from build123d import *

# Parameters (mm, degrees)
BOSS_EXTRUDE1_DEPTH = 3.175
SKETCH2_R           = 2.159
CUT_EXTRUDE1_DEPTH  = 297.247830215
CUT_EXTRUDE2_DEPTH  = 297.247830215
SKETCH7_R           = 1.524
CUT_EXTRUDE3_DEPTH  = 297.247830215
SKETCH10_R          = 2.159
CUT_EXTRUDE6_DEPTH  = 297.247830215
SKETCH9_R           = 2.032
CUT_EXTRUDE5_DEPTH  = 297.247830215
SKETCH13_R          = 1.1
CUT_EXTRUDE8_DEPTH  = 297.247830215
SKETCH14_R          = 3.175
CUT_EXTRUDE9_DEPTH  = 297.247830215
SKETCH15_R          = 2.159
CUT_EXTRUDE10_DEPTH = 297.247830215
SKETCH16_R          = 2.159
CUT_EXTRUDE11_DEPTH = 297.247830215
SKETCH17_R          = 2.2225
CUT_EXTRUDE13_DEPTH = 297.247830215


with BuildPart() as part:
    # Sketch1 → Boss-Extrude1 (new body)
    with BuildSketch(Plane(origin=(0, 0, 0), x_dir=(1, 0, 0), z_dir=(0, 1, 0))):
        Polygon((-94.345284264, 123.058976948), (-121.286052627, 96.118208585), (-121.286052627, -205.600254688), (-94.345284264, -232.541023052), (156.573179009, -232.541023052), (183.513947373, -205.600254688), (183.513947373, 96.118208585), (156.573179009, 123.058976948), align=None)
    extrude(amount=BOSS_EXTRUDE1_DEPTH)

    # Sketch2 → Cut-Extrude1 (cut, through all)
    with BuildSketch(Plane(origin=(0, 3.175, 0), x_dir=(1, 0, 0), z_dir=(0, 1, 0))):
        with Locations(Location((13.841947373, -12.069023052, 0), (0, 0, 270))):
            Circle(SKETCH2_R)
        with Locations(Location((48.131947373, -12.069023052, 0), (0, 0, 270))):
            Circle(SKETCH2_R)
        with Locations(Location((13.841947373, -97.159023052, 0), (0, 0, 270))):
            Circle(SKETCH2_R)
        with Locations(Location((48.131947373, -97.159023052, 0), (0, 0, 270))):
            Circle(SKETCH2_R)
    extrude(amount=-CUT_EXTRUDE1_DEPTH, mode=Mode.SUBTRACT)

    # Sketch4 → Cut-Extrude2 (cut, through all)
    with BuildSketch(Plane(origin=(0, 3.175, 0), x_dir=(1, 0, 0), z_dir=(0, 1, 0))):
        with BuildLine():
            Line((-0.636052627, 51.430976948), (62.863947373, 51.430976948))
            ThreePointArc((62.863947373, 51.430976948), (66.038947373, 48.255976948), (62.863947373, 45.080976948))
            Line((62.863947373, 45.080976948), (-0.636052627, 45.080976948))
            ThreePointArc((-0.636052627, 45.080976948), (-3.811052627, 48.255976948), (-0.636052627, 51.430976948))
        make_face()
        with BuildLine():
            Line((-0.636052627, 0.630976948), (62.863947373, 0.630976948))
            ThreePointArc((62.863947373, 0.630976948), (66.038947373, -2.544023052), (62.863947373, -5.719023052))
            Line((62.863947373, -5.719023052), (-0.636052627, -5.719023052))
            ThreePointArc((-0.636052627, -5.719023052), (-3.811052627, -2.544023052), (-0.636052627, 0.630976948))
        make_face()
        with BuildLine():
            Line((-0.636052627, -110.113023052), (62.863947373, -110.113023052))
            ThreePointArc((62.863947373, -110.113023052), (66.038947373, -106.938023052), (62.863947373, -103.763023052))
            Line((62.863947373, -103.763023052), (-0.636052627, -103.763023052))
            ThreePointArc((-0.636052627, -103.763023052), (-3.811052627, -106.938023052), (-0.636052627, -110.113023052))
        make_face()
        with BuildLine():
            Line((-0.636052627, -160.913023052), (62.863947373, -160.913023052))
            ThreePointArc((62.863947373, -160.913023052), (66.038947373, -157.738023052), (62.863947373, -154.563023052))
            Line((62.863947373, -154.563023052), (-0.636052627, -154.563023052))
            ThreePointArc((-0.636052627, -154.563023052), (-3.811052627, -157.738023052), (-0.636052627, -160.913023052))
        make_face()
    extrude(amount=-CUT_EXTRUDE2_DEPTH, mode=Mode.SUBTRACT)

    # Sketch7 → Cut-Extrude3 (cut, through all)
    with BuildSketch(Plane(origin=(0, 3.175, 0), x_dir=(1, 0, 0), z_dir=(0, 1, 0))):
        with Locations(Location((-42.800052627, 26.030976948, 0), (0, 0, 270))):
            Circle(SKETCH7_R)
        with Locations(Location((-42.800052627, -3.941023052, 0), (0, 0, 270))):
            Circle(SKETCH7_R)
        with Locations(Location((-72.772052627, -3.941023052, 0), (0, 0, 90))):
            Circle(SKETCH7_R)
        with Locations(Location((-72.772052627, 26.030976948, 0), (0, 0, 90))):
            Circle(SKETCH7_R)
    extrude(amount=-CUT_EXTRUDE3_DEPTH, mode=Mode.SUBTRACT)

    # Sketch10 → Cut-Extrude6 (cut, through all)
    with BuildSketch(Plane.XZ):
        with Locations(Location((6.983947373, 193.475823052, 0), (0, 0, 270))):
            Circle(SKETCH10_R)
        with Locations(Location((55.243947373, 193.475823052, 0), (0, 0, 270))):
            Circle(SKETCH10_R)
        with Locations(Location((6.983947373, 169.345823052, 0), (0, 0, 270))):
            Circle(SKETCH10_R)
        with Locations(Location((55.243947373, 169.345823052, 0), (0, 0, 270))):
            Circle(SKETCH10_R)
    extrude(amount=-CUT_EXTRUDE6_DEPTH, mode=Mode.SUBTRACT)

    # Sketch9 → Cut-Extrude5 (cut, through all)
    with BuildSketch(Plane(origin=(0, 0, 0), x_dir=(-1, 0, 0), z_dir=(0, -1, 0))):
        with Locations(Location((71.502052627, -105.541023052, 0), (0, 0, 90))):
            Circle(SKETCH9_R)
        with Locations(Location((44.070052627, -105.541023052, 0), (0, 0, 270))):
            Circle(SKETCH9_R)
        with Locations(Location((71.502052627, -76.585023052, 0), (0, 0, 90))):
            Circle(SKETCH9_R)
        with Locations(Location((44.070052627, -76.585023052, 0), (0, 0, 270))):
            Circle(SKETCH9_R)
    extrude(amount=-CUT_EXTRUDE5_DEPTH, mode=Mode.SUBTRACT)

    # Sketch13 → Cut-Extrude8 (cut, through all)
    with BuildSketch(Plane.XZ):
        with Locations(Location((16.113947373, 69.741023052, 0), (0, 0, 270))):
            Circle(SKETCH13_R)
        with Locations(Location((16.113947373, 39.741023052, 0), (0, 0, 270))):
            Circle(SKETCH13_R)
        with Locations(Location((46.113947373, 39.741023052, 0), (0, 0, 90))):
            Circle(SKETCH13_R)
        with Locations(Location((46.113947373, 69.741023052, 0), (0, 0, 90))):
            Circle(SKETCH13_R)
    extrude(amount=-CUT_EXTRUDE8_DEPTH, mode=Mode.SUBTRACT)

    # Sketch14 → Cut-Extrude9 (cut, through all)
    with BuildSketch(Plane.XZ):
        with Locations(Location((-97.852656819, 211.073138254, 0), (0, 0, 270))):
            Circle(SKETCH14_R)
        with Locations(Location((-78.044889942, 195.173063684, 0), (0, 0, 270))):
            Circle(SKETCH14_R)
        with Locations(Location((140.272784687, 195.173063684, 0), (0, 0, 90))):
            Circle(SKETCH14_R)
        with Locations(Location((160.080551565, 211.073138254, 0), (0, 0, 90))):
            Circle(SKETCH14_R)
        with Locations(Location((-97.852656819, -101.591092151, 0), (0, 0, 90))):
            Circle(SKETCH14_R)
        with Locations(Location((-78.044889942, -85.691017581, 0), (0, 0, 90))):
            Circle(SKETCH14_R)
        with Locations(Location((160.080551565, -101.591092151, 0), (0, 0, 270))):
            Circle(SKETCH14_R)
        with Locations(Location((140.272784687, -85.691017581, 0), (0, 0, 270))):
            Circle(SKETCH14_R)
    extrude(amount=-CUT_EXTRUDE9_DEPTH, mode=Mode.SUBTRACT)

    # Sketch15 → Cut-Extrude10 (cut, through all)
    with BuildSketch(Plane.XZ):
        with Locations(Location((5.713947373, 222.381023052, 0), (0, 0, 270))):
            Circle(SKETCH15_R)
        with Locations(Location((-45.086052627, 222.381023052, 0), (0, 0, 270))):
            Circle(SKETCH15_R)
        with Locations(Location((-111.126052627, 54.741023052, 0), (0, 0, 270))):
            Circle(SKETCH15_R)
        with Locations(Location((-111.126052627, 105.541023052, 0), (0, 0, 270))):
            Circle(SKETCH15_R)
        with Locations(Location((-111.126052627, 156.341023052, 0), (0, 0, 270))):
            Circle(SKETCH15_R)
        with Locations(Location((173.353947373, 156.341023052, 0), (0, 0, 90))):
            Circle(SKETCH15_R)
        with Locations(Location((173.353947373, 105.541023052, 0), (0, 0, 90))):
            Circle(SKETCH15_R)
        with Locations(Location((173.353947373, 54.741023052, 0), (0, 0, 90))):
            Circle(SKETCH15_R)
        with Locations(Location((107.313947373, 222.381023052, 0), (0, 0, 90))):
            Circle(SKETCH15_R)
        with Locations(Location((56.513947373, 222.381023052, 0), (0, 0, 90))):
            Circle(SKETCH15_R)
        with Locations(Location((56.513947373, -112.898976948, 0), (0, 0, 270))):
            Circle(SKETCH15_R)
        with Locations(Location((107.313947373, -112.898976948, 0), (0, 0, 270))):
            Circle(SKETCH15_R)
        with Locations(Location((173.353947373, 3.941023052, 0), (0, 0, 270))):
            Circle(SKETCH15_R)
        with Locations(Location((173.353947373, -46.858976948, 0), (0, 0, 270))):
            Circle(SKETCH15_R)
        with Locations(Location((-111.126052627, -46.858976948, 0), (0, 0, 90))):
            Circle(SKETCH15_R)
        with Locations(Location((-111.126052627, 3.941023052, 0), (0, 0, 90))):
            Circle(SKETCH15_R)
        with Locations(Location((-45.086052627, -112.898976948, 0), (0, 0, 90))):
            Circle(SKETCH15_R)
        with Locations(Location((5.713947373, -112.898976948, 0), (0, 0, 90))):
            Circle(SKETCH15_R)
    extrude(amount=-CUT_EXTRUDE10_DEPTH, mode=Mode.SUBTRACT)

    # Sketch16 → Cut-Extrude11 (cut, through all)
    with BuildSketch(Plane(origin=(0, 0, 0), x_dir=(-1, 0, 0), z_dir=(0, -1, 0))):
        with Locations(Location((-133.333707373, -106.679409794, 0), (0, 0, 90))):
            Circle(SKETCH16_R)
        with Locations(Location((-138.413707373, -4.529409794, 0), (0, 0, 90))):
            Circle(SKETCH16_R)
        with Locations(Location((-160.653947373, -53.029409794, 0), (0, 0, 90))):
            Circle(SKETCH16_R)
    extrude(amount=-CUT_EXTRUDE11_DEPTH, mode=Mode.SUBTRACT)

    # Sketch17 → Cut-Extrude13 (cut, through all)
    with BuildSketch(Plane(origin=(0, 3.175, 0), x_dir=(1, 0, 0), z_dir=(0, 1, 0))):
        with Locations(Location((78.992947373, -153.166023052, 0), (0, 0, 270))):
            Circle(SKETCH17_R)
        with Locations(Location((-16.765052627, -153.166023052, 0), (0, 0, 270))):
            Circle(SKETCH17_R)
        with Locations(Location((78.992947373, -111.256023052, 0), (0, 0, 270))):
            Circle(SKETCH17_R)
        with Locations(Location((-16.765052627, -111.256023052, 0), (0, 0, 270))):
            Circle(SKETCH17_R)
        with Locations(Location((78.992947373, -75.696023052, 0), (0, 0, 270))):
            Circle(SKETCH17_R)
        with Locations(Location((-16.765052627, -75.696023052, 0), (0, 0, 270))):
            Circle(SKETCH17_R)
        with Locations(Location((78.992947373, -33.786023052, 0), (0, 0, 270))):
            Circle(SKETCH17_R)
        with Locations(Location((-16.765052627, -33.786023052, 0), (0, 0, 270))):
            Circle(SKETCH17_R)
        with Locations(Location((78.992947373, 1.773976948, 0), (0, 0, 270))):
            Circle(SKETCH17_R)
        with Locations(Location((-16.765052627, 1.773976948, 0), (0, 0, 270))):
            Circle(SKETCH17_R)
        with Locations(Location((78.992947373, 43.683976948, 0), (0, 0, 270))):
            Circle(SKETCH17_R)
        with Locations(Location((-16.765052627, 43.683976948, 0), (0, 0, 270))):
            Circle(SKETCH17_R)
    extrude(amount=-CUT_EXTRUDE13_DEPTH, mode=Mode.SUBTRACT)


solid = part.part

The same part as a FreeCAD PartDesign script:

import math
import FreeCAD as App
import Part
import Sketcher
Q = App.Units.Quantity


def add_polygon(sketch, points):
    """Adds a closed chain of lines whose ends are joined by coincident constraints."""
    first, n = sketch.GeometryCount, len(points)
    for a, b in zip(points, points[1:] + points[:1]):
        sketch.addGeometry(Part.LineSegment(App.Vector(*a, 0), App.Vector(*b, 0)), False)
    for i in range(n):
        sketch.addConstraint(Sketcher.Constraint("Coincident", first + i, 2, first + (i + 1) % n, 1))

doc = App.newDocument("Part")
body = doc.addObject("PartDesign::Body", "Body")

sketch1 = doc.addObject("Sketcher::SketchObject", "Sketch")
body.addObject(sketch1)
sketch1.AttachmentSupport = (doc.XZ_Plane, [""])
sketch1.MapMode = "FlatFace"
add_polygon(sketch1, [(-94, -123), (-121, -96), (-121, 206), (-94, 233), (157, 233), (184, 206), (184, -96), (157, -123)])
sketch1.addConstraint(Sketcher.Constraint("Vertical", 1))
sketch1.addConstraint(Sketcher.Constraint("Horizontal", 3))
sketch1.addConstraint(Sketcher.Constraint("Vertical", 5))
sketch1.addConstraint(Sketcher.Constraint("Horizontal", 7))
sketch1.addConstraint(Sketcher.Constraint("Perpendicular", 0, 2))
sketch1.addConstraint(Sketcher.Constraint("Perpendicular", 2, 4))
sketch1.addConstraint(Sketcher.Constraint("Perpendicular", 4, 6))
sketch1.addConstraint(Sketcher.Constraint("Horizontal", 1, 2, 4, 2))
sketch1.addConstraint(Sketcher.Constraint("Horizontal", 0, 2, 5, 2))
sketch1.addConstraint(Sketcher.Constraint("Vertical", 3, 2, 6, 2))
sketch1.addConstraint(Sketcher.Constraint("Vertical", 2, 2, 7, 2))
sketch1.addConstraint(Sketcher.Constraint("DistanceX", 1, 2, 4, 2, Q("12 in")))
sketch1.addConstraint(Sketcher.Constraint("DistanceY", 6, 2, 3, 2, Q("14 in")))
sketch1.addConstraint(Sketcher.Constraint("Distance", 0, Q("1.5 in")))
sketch1.addConstraint(Sketcher.Constraint("DistanceY", 0, 2, -1, 1, Q("96.118209 mm")))
sketch1.addConstraint(Sketcher.Constraint("DistanceX", -1, 1, 3, 2, Q("156.573179 mm")))
pad1 = doc.addObject("PartDesign::Pad", "Pad")
body.addObject(pad1)
pad1.Profile = sketch1
pad1.Length = Q("0.125 in")
pad1.Reversed = True

sketch2 = doc.addObject("Sketcher::SketchObject", "Sketch001")
body.addObject(sketch2)
sketch2.AttachmentSupport = (doc.XZ_Plane, [""])
sketch2.MapMode = "FlatFace"
sketch2.AttachmentOffset = App.Placement(App.Vector(0, 0, -0.125 * 25.4), App.Rotation())
sketch2.addGeometry(Part.Circle(App.Vector(13.8, 12.1, 0), App.Vector(0, 0, 1), 2.2), False)
sketch2.addGeometry(Part.Circle(App.Vector(48.1, 12.1, 0), App.Vector(0, 0, 1), 2.2), False)
sketch2.addGeometry(Part.Circle(App.Vector(13.8, 97.2, 0), App.Vector(0, 0, 1), 2.2), False)
sketch2.addGeometry(Part.Circle(App.Vector(48.1, 97.2, 0), App.Vector(0, 0, 1), 2.2), False)
sketch2.addConstraint(Sketcher.Constraint("Equal", 0, 1))
sketch2.addConstraint(Sketcher.Constraint("Equal", 1, 2))
sketch2.addConstraint(Sketcher.Constraint("Equal", 2, 3))
sketch2.addConstraint(Sketcher.Constraint("Horizontal", 0, 3, 1, 3))
sketch2.addConstraint(Sketcher.Constraint("Horizontal", 2, 3, 3, 3))
sketch2.addConstraint(Sketcher.Constraint("Vertical", 0, 3, 2, 3))
sketch2.addConstraint(Sketcher.Constraint("Vertical", 1, 3, 3, 3))
sketch2.addConstraint(Sketcher.Constraint("Diameter", 0, Q("0.17 in")))
sketch2.addConstraint(Sketcher.Constraint("DistanceX", 0, 3, 1, 3, Q("1.35 in")))
sketch2.addConstraint(Sketcher.Constraint("DistanceY", 0, 3, 2, 3, Q("3.35 in")))
sketch2.addConstraint(Sketcher.Constraint("DistanceX", -1, 1, 0, 3, Q("13.841947 mm")))
sketch2.addConstraint(Sketcher.Constraint("DistanceY", -1, 1, 0, 3, Q("12.069023 mm")))
pocket1 = doc.addObject("PartDesign::Pocket", "Pocket")
body.addObject(pocket1)
pocket1.Profile = sketch2
pocket1.Type = "ThroughAll"
pocket1.Reversed = True

sketch3 = doc.addObject("Sketcher::SketchObject", "Sketch002")
body.addObject(sketch3)
sketch3.AttachmentSupport = (doc.XZ_Plane, [""])
sketch3.MapMode = "FlatFace"
sketch3.AttachmentOffset = App.Placement(App.Vector(0, 0, -0.125 * 25.4), App.Rotation())
sketch3.addGeometry(Part.LineSegment(App.Vector(62.9, -51.4, 0), App.Vector(-0.6, -51.4, 0)), False)
sketch3.addGeometry(Part.ArcOfCircle(Part.Circle(App.Vector(-0.6, -48.3, 0), App.Vector(0, 0, 1), 3.2), math.radians(90), math.radians(270)), False)
sketch3.addGeometry(Part.LineSegment(App.Vector(-0.6, -45.1, 0), App.Vector(62.9, -45.1, 0)), False)
sketch3.addGeometry(Part.ArcOfCircle(Part.Circle(App.Vector(62.9, -48.3, 0), App.Vector(0, 0, 1), 3.2), math.radians(-90), math.radians(90)), False)
sketch3.addGeometry(Part.LineSegment(App.Vector(62.9, -0.6, 0), App.Vector(-0.6, -0.6, 0)), False)
sketch3.addGeometry(Part.ArcOfCircle(Part.Circle(App.Vector(-0.6, 2.5, 0), App.Vector(0, 0, 1), 3.2), math.radians(90), math.radians(270)), False)
sketch3.addGeometry(Part.LineSegment(App.Vector(-0.6, 5.7, 0), App.Vector(62.9, 5.7, 0)), False)
sketch3.addGeometry(Part.ArcOfCircle(Part.Circle(App.Vector(62.9, 2.5, 0), App.Vector(0, 0, 1), 3.2), math.radians(-90), math.radians(90)), False)
sketch3.addGeometry(Part.LineSegment(App.Vector(-0.6, 110.1, 0), App.Vector(62.9, 110.1, 0)), False)
sketch3.addGeometry(Part.ArcOfCircle(Part.Circle(App.Vector(62.9, 106.9, 0), App.Vector(0, 0, 1), 3.2), math.radians(-90), math.radians(90)), False)
sketch3.addGeometry(Part.LineSegment(App.Vector(62.9, 103.8, 0), App.Vector(-0.6, 103.8, 0)), False)
sketch3.addGeometry(Part.ArcOfCircle(Part.Circle(App.Vector(-0.6, 106.9, 0), App.Vector(0, 0, 1), 3.2), math.radians(90), math.radians(270)), False)
sketch3.addGeometry(Part.LineSegment(App.Vector(-0.6, 160.9, 0), App.Vector(62.9, 160.9, 0)), False)
sketch3.addGeometry(Part.ArcOfCircle(Part.Circle(App.Vector(62.9, 157.7, 0), App.Vector(0, 0, 1), 3.2), math.radians(-90), math.radians(90)), False)
sketch3.addGeometry(Part.LineSegment(App.Vector(62.9, 154.6, 0), App.Vector(-0.6, 154.6, 0)), False)
sketch3.addGeometry(Part.ArcOfCircle(Part.Circle(App.Vector(-0.6, 157.7, 0), App.Vector(0, 0, 1), 3.2), math.radians(90), math.radians(270)), False)
sketch3.addConstraint(Sketcher.Constraint("Tangent", 0, 2, 1, 2))
sketch3.addConstraint(Sketcher.Constraint("Tangent", 1, 1, 2, 1))
sketch3.addConstraint(Sketcher.Constraint("Tangent", 2, 2, 3, 2))
sketch3.addConstraint(Sketcher.Constraint("Tangent", 3, 1, 0, 1))
sketch3.addConstraint(Sketcher.Constraint("Tangent", 4, 2, 5, 2))
sketch3.addConstraint(Sketcher.Constraint("Tangent", 5, 1, 6, 1))
sketch3.addConstraint(Sketcher.Constraint("Tangent", 6, 2, 7, 2))
sketch3.addConstraint(Sketcher.Constraint("Tangent", 7, 1, 4, 1))
sketch3.addConstraint(Sketcher.Constraint("Tangent", 8, 2, 9, 2))
sketch3.addConstraint(Sketcher.Constraint("Tangent", 9, 1, 10, 1))
sketch3.addConstraint(Sketcher.Constraint("Tangent", 10, 2, 11, 2))
sketch3.addConstraint(Sketcher.Constraint("Tangent", 11, 1, 8, 1))
sketch3.addConstraint(Sketcher.Constraint("Tangent", 12, 2, 13, 2))
sketch3.addConstraint(Sketcher.Constraint("Tangent", 13, 1, 14, 1))
sketch3.addConstraint(Sketcher.Constraint("Tangent", 14, 2, 15, 2))
sketch3.addConstraint(Sketcher.Constraint("Tangent", 15, 1, 12, 1))
sketch3.addConstraint(Sketcher.Constraint("Horizontal", 0))
sketch3.addConstraint(Sketcher.Constraint("Horizontal", 2))
sketch3.addConstraint(Sketcher.Constraint("Horizontal", 4))
sketch3.addConstraint(Sketcher.Constraint("Horizontal", 6))
sketch3.addConstraint(Sketcher.Constraint("Horizontal", 8))
sketch3.addConstraint(Sketcher.Constraint("Horizontal", 10))
sketch3.addConstraint(Sketcher.Constraint("Horizontal", 12))
sketch3.addConstraint(Sketcher.Constraint("Horizontal", 14))
sketch3.addConstraint(Sketcher.Constraint("Equal", 3, 5))
sketch3.addConstraint(Sketcher.Constraint("Equal", 7, 9))
sketch3.addConstraint(Sketcher.Constraint("Equal", 11, 13))
sketch3.addConstraint(Sketcher.Constraint("Vertical", 1, 3, 5, 3))
sketch3.addConstraint(Sketcher.Constraint("Vertical", 3, 3, 7, 3))
sketch3.addConstraint(Sketcher.Constraint("Vertical", 7, 3, 9, 3))
sketch3.addConstraint(Sketcher.Constraint("Vertical", 5, 3, 11, 3))
sketch3.addConstraint(Sketcher.Constraint("Vertical", 9, 3, 13, 3))
sketch3.addConstraint(Sketcher.Constraint("Vertical", 11, 3, 15, 3))
sketch3.addConstraint(Sketcher.Constraint("DistanceX", 0, 2, 0, 1, Q("2.5 in")))
sketch3.addConstraint(Sketcher.Constraint("Radius", 1, Q("0.125 in")))
sketch3.addConstraint(Sketcher.Constraint("DistanceY", 1, 3, 5, 3, Q("2 in")))
sketch3.addConstraint(Sketcher.Constraint("DistanceY", 9, 3, 13, 3, Q("2 in")))
sketch3.addConstraint(Sketcher.Constraint("DistanceY", 7, 3, 9, 3, Q("4.11 in")))
sketch3.addConstraint(Sketcher.Constraint("DistanceX", 1, 3, -1, 1, Q("0.636053 mm")))
sketch3.addConstraint(Sketcher.Constraint("DistanceY", 1, 3, -1, 1, Q("48.255977 mm")))
pocket2 = doc.addObject("PartDesign::Pocket", "Pocket001")
body.addObject(pocket2)
pocket2.Profile = sketch3
pocket2.Type = "ThroughAll"
pocket2.Reversed = True

sketch4 = doc.addObject("Sketcher::SketchObject", "Sketch003")
body.addObject(sketch4)
sketch4.AttachmentSupport = (doc.XZ_Plane, [""])
sketch4.MapMode = "FlatFace"
sketch4.AttachmentOffset = App.Placement(App.Vector(0, 0, -0.125 * 25.4), App.Rotation())
sketch4.addGeometry(Part.Circle(App.Vector(-42.8, -26, 0), App.Vector(0, 0, 1), 1.5), False)
sketch4.addGeometry(Part.Circle(App.Vector(-42.8, 3.9, 0), App.Vector(0, 0, 1), 1.5), False)
sketch4.addGeometry(Part.Circle(App.Vector(-72.8, 3.9, 0), App.Vector(0, 0, 1), 1.5), False)
sketch4.addGeometry(Part.Circle(App.Vector(-72.8, -26, 0), App.Vector(0, 0, 1), 1.5), False)
sketch4.addConstraint(Sketcher.Constraint("Equal", 0, 1))
sketch4.addConstraint(Sketcher.Constraint("Equal", 1, 2))
sketch4.addConstraint(Sketcher.Constraint("Equal", 2, 3))
sketch4.addConstraint(Sketcher.Constraint("Horizontal", 1, 3, 2, 3))
sketch4.addConstraint(Sketcher.Constraint("Horizontal", 0, 3, 3, 3))
sketch4.addConstraint(Sketcher.Constraint("Vertical", 0, 3, 1, 3))
sketch4.addConstraint(Sketcher.Constraint("Vertical", 2, 3, 3, 3))
sketch4.addConstraint(Sketcher.Constraint("Diameter", 0, Q("0.12 in")))
sketch4.addConstraint(Sketcher.Constraint("DistanceY", 0, 3, 1, 3, Q("1.18 in")))
sketch4.addConstraint(Sketcher.Constraint("DistanceX", 2, 3, 1, 3, Q("1.18 in")))
sketch4.addConstraint(Sketcher.Constraint("DistanceX", 0, 3, -1, 1, Q("42.800053 mm")))
sketch4.addConstraint(Sketcher.Constraint("DistanceY", 0, 3, -1, 1, Q("26.030977 mm")))
pocket3 = doc.addObject("PartDesign::Pocket", "Pocket002")
body.addObject(pocket3)
pocket3.Profile = sketch4
pocket3.Type = "ThroughAll"
pocket3.Reversed = True

sketch5 = doc.addObject("Sketcher::SketchObject", "Sketch004")
body.addObject(sketch5)
sketch5.AttachmentSupport = (doc.XZ_Plane, [""])
sketch5.MapMode = "FlatFace"
sketch5.addGeometry(Part.Circle(App.Vector(7, 193.5, 0), App.Vector(0, 0, 1), 2.2), False)
sketch5.addGeometry(Part.Circle(App.Vector(55.2, 193.5, 0), App.Vector(0, 0, 1), 2.2), False)
sketch5.addGeometry(Part.Circle(App.Vector(7, 169.3, 0), App.Vector(0, 0, 1), 2.2), False)
sketch5.addGeometry(Part.Circle(App.Vector(55.2, 169.3, 0), App.Vector(0, 0, 1), 2.2), False)
sketch5.addConstraint(Sketcher.Constraint("Equal", 0, 1))
sketch5.addConstraint(Sketcher.Constraint("Equal", 1, 2))
sketch5.addConstraint(Sketcher.Constraint("Equal", 2, 3))
sketch5.addConstraint(Sketcher.Constraint("Horizontal", 0, 3, 1, 3))
sketch5.addConstraint(Sketcher.Constraint("Horizontal", 2, 3, 3, 3))
sketch5.addConstraint(Sketcher.Constraint("Vertical", 0, 3, 2, 3))
sketch5.addConstraint(Sketcher.Constraint("Vertical", 1, 3, 3, 3))
sketch5.addConstraint(Sketcher.Constraint("Diameter", 0, Q("0.17 in")))
sketch5.addConstraint(Sketcher.Constraint("DistanceX", 0, 3, 1, 3, Q("1.9 in")))
sketch5.addConstraint(Sketcher.Constraint("DistanceY", 2, 3, 0, 3, Q("0.95 in")))
sketch5.addConstraint(Sketcher.Constraint("DistanceX", -1, 1, 0, 3, Q("6.983947 mm")))
sketch5.addConstraint(Sketcher.Constraint("DistanceY", -1, 1, 0, 3, Q("193.475823 mm")))
pocket4 = doc.addObject("PartDesign::Pocket", "Pocket003")
body.addObject(pocket4)
pocket4.Profile = sketch5
pocket4.Type = "ThroughAll"

sketch6 = doc.addObject("Sketcher::SketchObject", "Sketch005")
body.addObject(sketch6)
sketch6.AttachmentSupport = (doc.XZ_Plane, [""])
sketch6.MapMode = "FlatFace"
sketch6.addGeometry(Part.Circle(App.Vector(-71.5, 105.5, 0), App.Vector(0, 0, 1), 2), False)
sketch6.addGeometry(Part.Circle(App.Vector(-44.1, 105.5, 0), App.Vector(0, 0, 1), 2), False)
sketch6.addGeometry(Part.Circle(App.Vector(-71.5, 76.6, 0), App.Vector(0, 0, 1), 2), False)
sketch6.addGeometry(Part.Circle(App.Vector(-44.1, 76.6, 0), App.Vector(0, 0, 1), 2), False)
sketch6.addConstraint(Sketcher.Constraint("Equal", 0, 1))
sketch6.addConstraint(Sketcher.Constraint("Equal", 1, 2))
sketch6.addConstraint(Sketcher.Constraint("Equal", 2, 3))
sketch6.addConstraint(Sketcher.Constraint("Horizontal", 0, 3, 1, 3))
sketch6.addConstraint(Sketcher.Constraint("Horizontal", 2, 3, 3, 3))
sketch6.addConstraint(Sketcher.Constraint("Vertical", 0, 3, 2, 3))
sketch6.addConstraint(Sketcher.Constraint("Vertical", 1, 3, 3, 3))
sketch6.addConstraint(Sketcher.Constraint("Diameter", 0, Q("0.16 in")))
sketch6.addConstraint(Sketcher.Constraint("DistanceX", 0, 3, 1, 3, Q("1.08 in")))
sketch6.addConstraint(Sketcher.Constraint("DistanceY", 2, 3, 0, 3, Q("1.14 in")))
sketch6.addConstraint(Sketcher.Constraint("DistanceX", 0, 3, -1, 1, Q("71.502053 mm")))
sketch6.addConstraint(Sketcher.Constraint("DistanceY", -1, 1, 0, 3, Q("105.541023 mm")))
pocket5 = doc.addObject("PartDesign::Pocket", "Pocket004")
body.addObject(pocket5)
pocket5.Profile = sketch6
pocket5.Type = "ThroughAll"

sketch7 = doc.addObject("Sketcher::SketchObject", "Sketch006")
body.addObject(sketch7)
sketch7.AttachmentSupport = (doc.XZ_Plane, [""])
sketch7.MapMode = "FlatFace"
sketch7.addGeometry(Part.Circle(App.Vector(16.1, 69.7, 0), App.Vector(0, 0, 1), 1.1), False)
sketch7.addGeometry(Part.Circle(App.Vector(16.1, 39.7, 0), App.Vector(0, 0, 1), 1.1), False)
sketch7.addGeometry(Part.Circle(App.Vector(46.1, 39.7, 0), App.Vector(0, 0, 1), 1.1), False)
sketch7.addGeometry(Part.Circle(App.Vector(46.1, 69.7, 0), App.Vector(0, 0, 1), 1.1), False)
sketch7.addConstraint(Sketcher.Constraint("Equal", 0, 1))
sketch7.addConstraint(Sketcher.Constraint("Equal", 1, 2))
sketch7.addConstraint(Sketcher.Constraint("Equal", 2, 3))
sketch7.addConstraint(Sketcher.Constraint("Horizontal", 1, 3, 2, 3))
sketch7.addConstraint(Sketcher.Constraint("Horizontal", 0, 3, 3, 3))
sketch7.addConstraint(Sketcher.Constraint("Vertical", 0, 3, 1, 3))
sketch7.addConstraint(Sketcher.Constraint("Vertical", 2, 3, 3, 3))
sketch7.addConstraint(Sketcher.Constraint("Diameter", 0, Q("2.2 mm")))
sketch7.addConstraint(Sketcher.Constraint("DistanceY", 1, 3, 0, 3, Q("30 mm")))
sketch7.addConstraint(Sketcher.Constraint("DistanceX", 1, 3, 2, 3, Q("30 mm")))
sketch7.addConstraint(Sketcher.Constraint("DistanceX", -1, 1, 0, 3, Q("16.113947 mm")))
sketch7.addConstraint(Sketcher.Constraint("DistanceY", -1, 1, 0, 3, Q("69.741023 mm")))
pocket6 = doc.addObject("PartDesign::Pocket", "Pocket005")
body.addObject(pocket6)
pocket6.Profile = sketch7
pocket6.Type = "ThroughAll"

sketch8 = doc.addObject("Sketcher::SketchObject", "Sketch007")
body.addObject(sketch8)
sketch8.AttachmentSupport = (doc.XZ_Plane, [""])
sketch8.MapMode = "FlatFace"
sketch8.addGeometry(Part.Circle(App.Vector(-97.9, 211.1, 0), App.Vector(0, 0, 1), 3.2), False)
sketch8.addGeometry(Part.Circle(App.Vector(-78, 195.2, 0), App.Vector(0, 0, 1), 3.2), False)
sketch8.addGeometry(Part.Circle(App.Vector(140.3, 195.2, 0), App.Vector(0, 0, 1), 3.2), False)
sketch8.addGeometry(Part.Circle(App.Vector(160.1, 211.1, 0), App.Vector(0, 0, 1), 3.2), False)
sketch8.addGeometry(Part.Circle(App.Vector(-97.9, -101.6, 0), App.Vector(0, 0, 1), 3.2), False)
sketch8.addGeometry(Part.Circle(App.Vector(-78, -85.7, 0), App.Vector(0, 0, 1), 3.2), False)
sketch8.addGeometry(Part.Circle(App.Vector(160.1, -101.6, 0), App.Vector(0, 0, 1), 3.2), False)
sketch8.addGeometry(Part.Circle(App.Vector(140.3, -85.7, 0), App.Vector(0, 0, 1), 3.2), False)
sketch8.addConstraint(Sketcher.Constraint("Equal", 0, 1))
sketch8.addConstraint(Sketcher.Constraint("Equal", 1, 2))
sketch8.addConstraint(Sketcher.Constraint("Equal", 2, 3))
sketch8.addConstraint(Sketcher.Constraint("Equal", 3, 4))
sketch8.addConstraint(Sketcher.Constraint("Equal", 4, 5))
sketch8.addConstraint(Sketcher.Constraint("Equal", 5, 6))
sketch8.addConstraint(Sketcher.Constraint("Equal", 6, 7))
sketch8.addConstraint(Sketcher.Constraint("Horizontal", 1, 3, 2, 3))
sketch8.addConstraint(Sketcher.Constraint("Horizontal", 0, 3, 3, 3))
sketch8.addConstraint(Sketcher.Constraint("Horizontal", 4, 3, 6, 3))
sketch8.addConstraint(Sketcher.Constraint("Horizontal", 5, 3, 7, 3))
sketch8.addConstraint(Sketcher.Constraint("Vertical", 0, 3, 4, 3))
sketch8.addConstraint(Sketcher.Constraint("Vertical", 1, 3, 5, 3))
sketch8.addConstraint(Sketcher.Constraint("Vertical", 3, 3, 6, 3))
sketch8.addConstraint(Sketcher.Constraint("Vertical", 2, 3, 7, 3))
sketch8.addConstraint(Sketcher.Constraint("Diameter", 0, Q("0.25 in")))
sketch8.addConstraint(Sketcher.Constraint("DistanceY", -1, 1, 0, 3, Q("211.073138 mm")))
sketch8.addConstraint(Sketcher.Constraint("DistanceX", 1, 3, -1, 1, Q("78.04489 mm")))
sketch8.addConstraint(Sketcher.Constraint("DistanceX", -1, 1, 3, 3, Q("160.080552 mm")))
sketch8.addConstraint(Sketcher.Constraint("DistanceX", 0, 3, 2, 3, Q("238.125442 mm")))
sketch8.addConstraint(Sketcher.Constraint("DistanceX", 0, 3, 3, 3, Q("257.933208 mm")))
sketch8.addConstraint(Sketcher.Constraint("DistanceY", 4, 3, 0, 3, Q("312.66423 mm")))
sketch8.addConstraint(Sketcher.Constraint("DistanceY", 5, 3, 1, 3, Q("280.864081 mm")))
sketch8.addConstraint(Sketcher.Constraint("DistanceY", -1, 1, 1, 3, Q("195.173064 mm")))
pocket7 = doc.addObject("PartDesign::Pocket", "Pocket006")
body.addObject(pocket7)
pocket7.Profile = sketch8
pocket7.Type = "ThroughAll"

sketch9 = doc.addObject("Sketcher::SketchObject", "Sketch008")
body.addObject(sketch9)
sketch9.AttachmentSupport = (doc.XZ_Plane, [""])
sketch9.MapMode = "FlatFace"
sketch9.addGeometry(Part.Circle(App.Vector(5.7, 222.4, 0), App.Vector(0, 0, 1), 2.2), False)
sketch9.addGeometry(Part.Circle(App.Vector(-45.1, 222.4, 0), App.Vector(0, 0, 1), 2.2), False)
sketch9.addGeometry(Part.Circle(App.Vector(-111.1, 54.7, 0), App.Vector(0, 0, 1), 2.2), False)
sketch9.addGeometry(Part.Circle(App.Vector(-111.1, 105.5, 0), App.Vector(0, 0, 1), 2.2), False)
sketch9.addGeometry(Part.Circle(App.Vector(-111.1, 156.3, 0), App.Vector(0, 0, 1), 2.2), False)
sketch9.addGeometry(Part.Circle(App.Vector(173.4, 156.3, 0), App.Vector(0, 0, 1), 2.2), False)
sketch9.addGeometry(Part.Circle(App.Vector(173.4, 105.5, 0), App.Vector(0, 0, 1), 2.2), False)
sketch9.addGeometry(Part.Circle(App.Vector(173.4, 54.7, 0), App.Vector(0, 0, 1), 2.2), False)
sketch9.addGeometry(Part.Circle(App.Vector(107.3, 222.4, 0), App.Vector(0, 0, 1), 2.2), False)
sketch9.addGeometry(Part.Circle(App.Vector(56.5, 222.4, 0), App.Vector(0, 0, 1), 2.2), False)
sketch9.addGeometry(Part.Circle(App.Vector(56.5, -112.9, 0), App.Vector(0, 0, 1), 2.2), False)
sketch9.addGeometry(Part.Circle(App.Vector(107.3, -112.9, 0), App.Vector(0, 0, 1), 2.2), False)
sketch9.addGeometry(Part.Circle(App.Vector(173.4, 3.9, 0), App.Vector(0, 0, 1), 2.2), False)
sketch9.addGeometry(Part.Circle(App.Vector(173.4, -46.9, 0), App.Vector(0, 0, 1), 2.2), False)
sketch9.addGeometry(Part.Circle(App.Vector(-111.1, -46.9, 0), App.Vector(0, 0, 1), 2.2), False)
sketch9.addGeometry(Part.Circle(App.Vector(-111.1, 3.9, 0), App.Vector(0, 0, 1), 2.2), False)
sketch9.addGeometry(Part.Circle(App.Vector(-45.1, -112.9, 0), App.Vector(0, 0, 1), 2.2), False)
sketch9.addGeometry(Part.Circle(App.Vector(5.7, -112.9, 0), App.Vector(0, 0, 1), 2.2), False)
sketch9.addConstraint(Sketcher.Constraint("Equal", 0, 1))
sketch9.addConstraint(Sketcher.Constraint("Equal", 1, 2))
sketch9.addConstraint(Sketcher.Constraint("Equal", 2, 3))
sketch9.addConstraint(Sketcher.Constraint("Equal", 3, 4))
sketch9.addConstraint(Sketcher.Constraint("Equal", 4, 5))
sketch9.addConstraint(Sketcher.Constraint("Equal", 5, 6))
sketch9.addConstraint(Sketcher.Constraint("Equal", 6, 7))
sketch9.addConstraint(Sketcher.Constraint("Equal", 7, 8))
sketch9.addConstraint(Sketcher.Constraint("Equal", 8, 9))
sketch9.addConstraint(Sketcher.Constraint("Equal", 9, 10))
sketch9.addConstraint(Sketcher.Constraint("Equal", 10, 11))
sketch9.addConstraint(Sketcher.Constraint("Equal", 11, 12))
sketch9.addConstraint(Sketcher.Constraint("Equal", 12, 13))
sketch9.addConstraint(Sketcher.Constraint("Equal", 13, 14))
sketch9.addConstraint(Sketcher.Constraint("Equal", 14, 15))
sketch9.addConstraint(Sketcher.Constraint("Equal", 15, 16))
sketch9.addConstraint(Sketcher.Constraint("Equal", 16, 17))
sketch9.addConstraint(Sketcher.Constraint("Horizontal", 0, 3, 1, 3))
sketch9.addConstraint(Sketcher.Constraint("Horizontal", 4, 3, 5, 3))
sketch9.addConstraint(Sketcher.Constraint("Horizontal", 3, 3, 6, 3))
sketch9.addConstraint(Sketcher.Constraint("Horizontal", 2, 3, 7, 3))
sketch9.addConstraint(Sketcher.Constraint("Horizontal", 1, 3, 8, 3))
sketch9.addConstraint(Sketcher.Constraint("Horizontal", 8, 3, 9, 3))
sketch9.addConstraint(Sketcher.Constraint("Horizontal", 10, 3, 11, 3))
sketch9.addConstraint(Sketcher.Constraint("Horizontal", 13, 3, 14, 3))
sketch9.addConstraint(Sketcher.Constraint("Horizontal", 12, 3, 15, 3))
sketch9.addConstraint(Sketcher.Constraint("Horizontal", 11, 3, 16, 3))
sketch9.addConstraint(Sketcher.Constraint("Horizontal", 16, 3, 17, 3))
sketch9.addConstraint(Sketcher.Constraint("Vertical", 2, 3, 3, 3))
sketch9.addConstraint(Sketcher.Constraint("Vertical", 3, 3, 4, 3))
sketch9.addConstraint(Sketcher.Constraint("Vertical", 5, 3, 6, 3))
sketch9.addConstraint(Sketcher.Constraint("Vertical", 6, 3, 7, 3))
sketch9.addConstraint(Sketcher.Constraint("Vertical", 9, 3, 10, 3))
sketch9.addConstraint(Sketcher.Constraint("Vertical", 8, 3, 11, 3))
sketch9.addConstraint(Sketcher.Constraint("Vertical", 7, 3, 12, 3))
sketch9.addConstraint(Sketcher.Constraint("Vertical", 12, 3, 13, 3))
sketch9.addConstraint(Sketcher.Constraint("Vertical", 4, 3, 14, 3))
sketch9.addConstraint(Sketcher.Constraint("Vertical", 14, 3, 15, 3))
sketch9.addConstraint(Sketcher.Constraint("Vertical", 1, 3, 16, 3))
sketch9.addConstraint(Sketcher.Constraint("Vertical", 0, 3, 17, 3))
sketch9.addConstraint(Sketcher.Constraint("Diameter", 0, Q("0.17 in")))
sketch9.addConstraint(Sketcher.Constraint("DistanceX", 1, 3, 0, 3, Q("2 in")))
sketch9.addConstraint(Sketcher.Constraint("DistanceY", 2, 3, 3, 3, Q("2 in")))
sketch9.addConstraint(Sketcher.Constraint("DistanceY", 3, 3, 4, 3, Q("2 in")))
sketch9.addConstraint(Sketcher.Constraint("DistanceX", 0, 3, 8, 3, Q("4 in")))
sketch9.addConstraint(Sketcher.Constraint("DistanceX", 0, 3, 9, 3, Q("2 in")))
sketch9.addConstraint(Sketcher.Constraint("DistanceY", 12, 3, 7, 3, Q("2 in")))
sketch9.addConstraint(Sketcher.Constraint("DistanceY", 13, 3, 12, 3, Q("2 in")))
sketch9.addConstraint(Sketcher.Constraint("DistanceX", 2, 3, 1, 3, Q("2.6 in")))
sketch9.addConstraint(Sketcher.Constraint("DistanceY", 2, 3, 1, 3, Q("6.6 in")))
sketch9.addConstraint(Sketcher.Constraint("DistanceX", 0, 3, 5, 3, Q("6.6 in")))
sketch9.addConstraint(Sketcher.Constraint("DistanceY", 10, 3, 7, 3, Q("6.6 in")))
sketch9.addConstraint(Sketcher.Constraint("DistanceX", -1, 1, 0, 3, Q("5.713947 mm")))
sketch9.addConstraint(Sketcher.Constraint("DistanceY", -1, 1, 0, 3, Q("222.381023 mm")))
pocket8 = doc.addObject("PartDesign::Pocket", "Pocket007")
body.addObject(pocket8)
pocket8.Profile = sketch9
pocket8.Type = "ThroughAll"

sketch10 = doc.addObject("Sketcher::SketchObject", "Sketch009")
body.addObject(sketch10)
sketch10.AttachmentSupport = (doc.XZ_Plane, [""])
sketch10.MapMode = "FlatFace"
sketch10.addGeometry(Part.Circle(App.Vector(133.3, 106.7, 0), App.Vector(0, 0, 1), 2.2), False)
sketch10.addGeometry(Part.Circle(App.Vector(138.4, 4.5, 0), App.Vector(0, 0, 1), 2.2), False)
sketch10.addGeometry(Part.Circle(App.Vector(160.7, 53, 0), App.Vector(0, 0, 1), 2.2), False)
sketch10.addConstraint(Sketcher.Constraint("Equal", 0, 1))
sketch10.addConstraint(Sketcher.Constraint("Equal", 1, 2))
sketch10.addConstraint(Sketcher.Constraint("Diameter", 0, Q("0.17 in")))
sketch10.addConstraint(Sketcher.Constraint("DistanceX", 0, 3, 1, 3, Q("0.2 in")))
sketch10.addConstraint(Sketcher.Constraint("DistanceX", 1, 3, 2, 3, Q("0.8756 in")))
sketch10.addConstraint(Sketcher.Constraint("DistanceY", 1, 3, 0, 3, Q("102.15 mm")))
sketch10.addConstraint(Sketcher.Constraint("DistanceY", 1, 3, 2, 3, Q("48.5 mm")))
sketch10.addConstraint(Sketcher.Constraint("DistanceY", -1, 1, 0, 3, Q("106.67941 mm")))
sketch10.addConstraint(Sketcher.Constraint("DistanceX", -1, 1, 0, 3, Q("133.333707 mm")))
pocket9 = doc.addObject("PartDesign::Pocket", "Pocket008")
body.addObject(pocket9)
pocket9.Profile = sketch10
pocket9.Type = "ThroughAll"

sketch11 = doc.addObject("Sketcher::SketchObject", "Sketch010")
body.addObject(sketch11)
sketch11.AttachmentSupport = (doc.XZ_Plane, [""])
sketch11.MapMode = "FlatFace"
sketch11.AttachmentOffset = App.Placement(App.Vector(0, 0, -0.125 * 25.4), App.Rotation())
sketch11.addGeometry(Part.Circle(App.Vector(79, 153.2, 0), App.Vector(0, 0, 1), 2.2), False)
sketch11.addGeometry(Part.Circle(App.Vector(-16.8, 153.2, 0), App.Vector(0, 0, 1), 2.2), False)
sketch11.addGeometry(Part.Circle(App.Vector(79, 111.3, 0), App.Vector(0, 0, 1), 2.2), False)
sketch11.addGeometry(Part.Circle(App.Vector(-16.8, 111.3, 0), App.Vector(0, 0, 1), 2.2), False)
sketch11.addGeometry(Part.Circle(App.Vector(79, 75.7, 0), App.Vector(0, 0, 1), 2.2), False)
sketch11.addGeometry(Part.Circle(App.Vector(-16.8, 75.7, 0), App.Vector(0, 0, 1), 2.2), False)
sketch11.addGeometry(Part.Circle(App.Vector(79, 33.8, 0), App.Vector(0, 0, 1), 2.2), False)
sketch11.addGeometry(Part.Circle(App.Vector(-16.8, 33.8, 0), App.Vector(0, 0, 1), 2.2), False)
sketch11.addGeometry(Part.Circle(App.Vector(79, -1.8, 0), App.Vector(0, 0, 1), 2.2), False)
sketch11.addGeometry(Part.Circle(App.Vector(-16.8, -1.8, 0), App.Vector(0, 0, 1), 2.2), False)
sketch11.addGeometry(Part.Circle(App.Vector(79, -43.7, 0), App.Vector(0, 0, 1), 2.2), False)
sketch11.addGeometry(Part.Circle(App.Vector(-16.8, -43.7, 0), App.Vector(0, 0, 1), 2.2), False)
sketch11.addConstraint(Sketcher.Constraint("Equal", 0, 1))
sketch11.addConstraint(Sketcher.Constraint("Equal", 1, 2))
sketch11.addConstraint(Sketcher.Constraint("Equal", 2, 3))
sketch11.addConstraint(Sketcher.Constraint("Equal", 3, 4))
sketch11.addConstraint(Sketcher.Constraint("Equal", 4, 5))
sketch11.addConstraint(Sketcher.Constraint("Equal", 5, 6))
sketch11.addConstraint(Sketcher.Constraint("Equal", 6, 7))
sketch11.addConstraint(Sketcher.Constraint("Equal", 7, 8))
sketch11.addConstraint(Sketcher.Constraint("Equal", 8, 9))
sketch11.addConstraint(Sketcher.Constraint("Equal", 9, 10))
sketch11.addConstraint(Sketcher.Constraint("Equal", 10, 11))
sketch11.addConstraint(Sketcher.Constraint("Horizontal", 0, 3, 1, 3))
sketch11.addConstraint(Sketcher.Constraint("Horizontal", 2, 3, 3, 3))
sketch11.addConstraint(Sketcher.Constraint("Horizontal", 4, 3, 5, 3))
sketch11.addConstraint(Sketcher.Constraint("Horizontal", 6, 3, 7, 3))
sketch11.addConstraint(Sketcher.Constraint("Horizontal", 8, 3, 9, 3))
sketch11.addConstraint(Sketcher.Constraint("Horizontal", 10, 3, 11, 3))
sketch11.addConstraint(Sketcher.Constraint("Vertical", 0, 3, 2, 3))
sketch11.addConstraint(Sketcher.Constraint("Vertical", 1, 3, 3, 3))
sketch11.addConstraint(Sketcher.Constraint("Vertical", 2, 3, 4, 3))
sketch11.addConstraint(Sketcher.Constraint("Vertical", 3, 3, 5, 3))
sketch11.addConstraint(Sketcher.Constraint("Vertical", 4, 3, 6, 3))
sketch11.addConstraint(Sketcher.Constraint("Vertical", 5, 3, 7, 3))
sketch11.addConstraint(Sketcher.Constraint("Vertical", 6, 3, 8, 3))
sketch11.addConstraint(Sketcher.Constraint("Vertical", 7, 3, 9, 3))
sketch11.addConstraint(Sketcher.Constraint("Vertical", 8, 3, 10, 3))
sketch11.addConstraint(Sketcher.Constraint("Vertical", 9, 3, 11, 3))
sketch11.addConstraint(Sketcher.Constraint("Diameter", 0, Q("0.175 in")))
sketch11.addConstraint(Sketcher.Constraint("DistanceY", 4, 3, 2, 3, Q("1.4 in")))
sketch11.addConstraint(Sketcher.Constraint("DistanceY", 6, 3, 0, 3, Q("4.7 in")))
sketch11.addConstraint(Sketcher.Constraint("DistanceY", 8, 3, 6, 3, Q("1.4 in")))
sketch11.addConstraint(Sketcher.Constraint("DistanceY", 10, 3, 4, 3, Q("4.7 in")))
sketch11.addConstraint(Sketcher.Constraint("DistanceX", 1, 3, 0, 3, Q("3.77 in")))
sketch11.addConstraint(Sketcher.Constraint("DistanceY", 2, 3, 0, 3, Q("1.65 in")))
sketch11.addConstraint(Sketcher.Constraint("DistanceX", -1, 1, 0, 3, Q("78.992947 mm")))
sketch11.addConstraint(Sketcher.Constraint("DistanceY", -1, 1, 0, 3, Q("153.166023 mm")))
pocket10 = doc.addObject("PartDesign::Pocket", "Pocket009")
body.addObject(pocket10)
pocket10.Profile = sketch11
pocket10.Type = "ThroughAll"
pocket10.Reversed = True

doc.recompute()
